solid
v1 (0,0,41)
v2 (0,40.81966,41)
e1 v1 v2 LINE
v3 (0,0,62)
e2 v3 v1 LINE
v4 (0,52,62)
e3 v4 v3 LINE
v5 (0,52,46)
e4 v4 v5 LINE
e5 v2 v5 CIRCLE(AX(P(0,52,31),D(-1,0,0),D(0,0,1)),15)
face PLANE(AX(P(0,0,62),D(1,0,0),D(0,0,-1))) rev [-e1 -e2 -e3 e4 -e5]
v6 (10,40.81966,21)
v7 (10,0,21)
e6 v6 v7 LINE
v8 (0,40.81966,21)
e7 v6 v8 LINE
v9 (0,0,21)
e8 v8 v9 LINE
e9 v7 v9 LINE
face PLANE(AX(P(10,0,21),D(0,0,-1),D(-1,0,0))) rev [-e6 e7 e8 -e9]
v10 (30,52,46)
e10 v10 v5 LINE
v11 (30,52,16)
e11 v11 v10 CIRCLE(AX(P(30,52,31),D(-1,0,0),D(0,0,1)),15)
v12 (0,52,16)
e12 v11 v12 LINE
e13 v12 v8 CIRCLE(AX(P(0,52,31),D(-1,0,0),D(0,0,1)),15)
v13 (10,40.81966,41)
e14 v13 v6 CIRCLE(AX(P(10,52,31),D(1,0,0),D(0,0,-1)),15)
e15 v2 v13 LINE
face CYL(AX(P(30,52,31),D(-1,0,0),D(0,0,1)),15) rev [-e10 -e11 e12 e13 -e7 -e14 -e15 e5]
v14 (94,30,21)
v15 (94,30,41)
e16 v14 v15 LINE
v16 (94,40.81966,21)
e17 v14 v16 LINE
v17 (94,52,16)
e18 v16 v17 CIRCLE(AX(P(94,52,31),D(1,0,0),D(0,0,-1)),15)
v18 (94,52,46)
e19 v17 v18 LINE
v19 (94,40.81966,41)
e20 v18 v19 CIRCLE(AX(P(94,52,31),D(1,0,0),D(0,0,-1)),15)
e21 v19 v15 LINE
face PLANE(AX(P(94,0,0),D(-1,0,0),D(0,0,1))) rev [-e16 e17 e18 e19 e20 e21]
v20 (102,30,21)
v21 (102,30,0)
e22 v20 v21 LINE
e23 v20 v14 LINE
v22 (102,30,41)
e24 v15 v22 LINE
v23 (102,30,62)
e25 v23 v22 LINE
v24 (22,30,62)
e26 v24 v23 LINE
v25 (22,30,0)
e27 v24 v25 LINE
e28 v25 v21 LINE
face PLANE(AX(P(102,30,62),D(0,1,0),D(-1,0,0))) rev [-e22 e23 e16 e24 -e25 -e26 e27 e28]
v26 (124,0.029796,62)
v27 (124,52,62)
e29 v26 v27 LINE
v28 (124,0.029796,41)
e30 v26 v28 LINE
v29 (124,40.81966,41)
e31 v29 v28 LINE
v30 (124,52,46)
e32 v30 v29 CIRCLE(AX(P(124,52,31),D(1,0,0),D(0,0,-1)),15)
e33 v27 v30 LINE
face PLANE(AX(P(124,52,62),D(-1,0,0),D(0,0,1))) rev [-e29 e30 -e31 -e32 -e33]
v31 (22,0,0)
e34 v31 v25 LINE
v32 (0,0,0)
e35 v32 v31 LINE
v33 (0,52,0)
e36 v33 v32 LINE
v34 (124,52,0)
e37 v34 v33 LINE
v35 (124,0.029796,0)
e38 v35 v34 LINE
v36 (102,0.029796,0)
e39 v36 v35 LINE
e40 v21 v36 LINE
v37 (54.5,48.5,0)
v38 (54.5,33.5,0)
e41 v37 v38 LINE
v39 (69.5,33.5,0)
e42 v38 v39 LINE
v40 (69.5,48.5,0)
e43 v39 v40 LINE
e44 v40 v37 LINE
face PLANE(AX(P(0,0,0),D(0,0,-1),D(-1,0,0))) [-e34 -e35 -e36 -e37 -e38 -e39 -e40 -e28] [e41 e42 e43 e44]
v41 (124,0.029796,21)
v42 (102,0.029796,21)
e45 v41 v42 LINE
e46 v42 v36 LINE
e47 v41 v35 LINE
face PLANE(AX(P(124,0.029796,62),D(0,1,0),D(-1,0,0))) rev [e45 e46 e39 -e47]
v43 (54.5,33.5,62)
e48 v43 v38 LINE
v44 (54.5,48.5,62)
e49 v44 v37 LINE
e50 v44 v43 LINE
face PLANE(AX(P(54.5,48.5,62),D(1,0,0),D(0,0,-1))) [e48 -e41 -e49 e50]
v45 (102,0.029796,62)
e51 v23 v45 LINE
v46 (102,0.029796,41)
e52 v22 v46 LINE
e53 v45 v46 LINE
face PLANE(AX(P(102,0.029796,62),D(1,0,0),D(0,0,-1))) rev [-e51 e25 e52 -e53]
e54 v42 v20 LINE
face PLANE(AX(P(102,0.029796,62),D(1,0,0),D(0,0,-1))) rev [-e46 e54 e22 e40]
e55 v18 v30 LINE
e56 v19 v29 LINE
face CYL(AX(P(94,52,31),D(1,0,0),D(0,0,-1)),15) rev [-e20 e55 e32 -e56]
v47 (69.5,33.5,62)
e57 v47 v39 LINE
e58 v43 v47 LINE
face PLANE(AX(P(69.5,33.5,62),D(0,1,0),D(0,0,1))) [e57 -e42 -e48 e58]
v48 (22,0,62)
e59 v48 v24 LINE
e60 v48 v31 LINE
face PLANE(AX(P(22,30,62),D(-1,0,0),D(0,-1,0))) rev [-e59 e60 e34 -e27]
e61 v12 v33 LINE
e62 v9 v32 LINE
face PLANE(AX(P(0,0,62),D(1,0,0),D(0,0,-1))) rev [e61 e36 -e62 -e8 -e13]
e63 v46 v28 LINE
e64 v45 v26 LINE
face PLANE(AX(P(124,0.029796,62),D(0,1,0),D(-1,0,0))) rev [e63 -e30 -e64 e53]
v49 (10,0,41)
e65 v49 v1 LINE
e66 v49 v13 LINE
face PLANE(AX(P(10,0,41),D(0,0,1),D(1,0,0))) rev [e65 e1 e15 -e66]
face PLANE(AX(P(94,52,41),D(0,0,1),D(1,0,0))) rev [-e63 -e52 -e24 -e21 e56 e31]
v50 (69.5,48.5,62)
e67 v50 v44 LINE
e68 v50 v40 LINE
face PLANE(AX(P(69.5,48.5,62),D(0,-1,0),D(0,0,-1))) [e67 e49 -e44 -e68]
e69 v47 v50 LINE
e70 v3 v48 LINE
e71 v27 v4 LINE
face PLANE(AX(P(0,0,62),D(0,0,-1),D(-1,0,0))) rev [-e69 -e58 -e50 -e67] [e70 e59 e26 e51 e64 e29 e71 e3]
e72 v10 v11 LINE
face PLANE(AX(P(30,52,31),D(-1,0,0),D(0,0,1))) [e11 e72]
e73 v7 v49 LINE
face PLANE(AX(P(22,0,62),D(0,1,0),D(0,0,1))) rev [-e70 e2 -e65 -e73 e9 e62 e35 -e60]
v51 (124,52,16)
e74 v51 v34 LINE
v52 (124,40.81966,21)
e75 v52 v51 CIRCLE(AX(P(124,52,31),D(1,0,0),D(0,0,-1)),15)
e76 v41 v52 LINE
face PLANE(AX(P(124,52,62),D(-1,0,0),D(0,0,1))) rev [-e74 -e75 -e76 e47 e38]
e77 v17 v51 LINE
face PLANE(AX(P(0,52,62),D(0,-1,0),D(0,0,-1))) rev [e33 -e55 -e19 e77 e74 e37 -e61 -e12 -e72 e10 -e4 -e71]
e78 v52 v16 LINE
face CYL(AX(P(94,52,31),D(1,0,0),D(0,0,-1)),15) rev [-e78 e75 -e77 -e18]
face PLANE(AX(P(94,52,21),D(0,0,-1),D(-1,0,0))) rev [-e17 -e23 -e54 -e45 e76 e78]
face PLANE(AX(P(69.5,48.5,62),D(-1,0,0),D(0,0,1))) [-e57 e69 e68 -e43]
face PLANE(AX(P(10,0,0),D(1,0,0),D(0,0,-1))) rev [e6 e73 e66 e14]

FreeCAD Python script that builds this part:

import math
import FreeCAD as App
import Part
import Sketcher

V = App.Vector
Q = App.Units.Quantity

doc = App.newDocument("Part")
body = doc.addObject("PartDesign::Body", "Body")

sketch1 = body.newObject("Sketcher::SketchObject", "Sketch")
sketch1.AttachmentSupport = (doc.getObject("XY_Plane"), [""])
sketch1.MapMode = "FlatFace"
sketch1.addGeometry([
    Part.LineSegment(V(0, 52, 0), V(0, 0, 0)),
    Part.LineSegment(V(0, 0, 0), V(22, 0, 0)),
    Part.LineSegment(V(22, 0, 0), V(22, 30, 0)),
    Part.LineSegment(V(22, 30, 0), V(102, 30, 0)),
    Part.LineSegment(V(102, 30, 0), V(102, 0.029796, 0)),
    Part.LineSegment(V(102, 0.029796, 0), V(124, 0.029796, 0)),
    Part.LineSegment(V(124, 0.029796, 0), V(124, 52, 0)),
    Part.LineSegment(V(124, 52, 0), V(0, 52, 0)),
    Part.LineSegment(V(54.5, 33.5, 0), V(54.5, 48.5, 0)),
    Part.LineSegment(V(54.5, 48.5, 0), V(69.5, 48.5, 0)),
    Part.LineSegment(V(69.5, 48.5, 0), V(69.5, 33.5, 0)),
    Part.LineSegment(V(69.5, 33.5, 0), V(54.5, 33.5, 0)),
], False)
sketch1.addConstraint([
    Sketcher.Constraint("Coincident", 0, 2, 1, 1),
    Sketcher.Constraint("Coincident", 1, 2, 2, 1),
    Sketcher.Constraint("Coincident", 2, 2, 3, 1),
    Sketcher.Constraint("Coincident", 3, 2, 4, 1),
    Sketcher.Constraint("Coincident", 4, 2, 5, 1),
    Sketcher.Constraint("Coincident", 5, 2, 6, 1),
    Sketcher.Constraint("Coincident", 6, 2, 7, 1),
    Sketcher.Constraint("Coincident", 7, 2, 0, 1),
    Sketcher.Constraint("Coincident", 8, 2, 9, 1),
    Sketcher.Constraint("Coincident", 9, 2, 10, 1),
    Sketcher.Constraint("Coincident", 10, 2, 11, 1),
    Sketcher.Constraint("Coincident", 11, 2, 8, 1),
    Sketcher.Constraint("Vertical", 0),
    Sketcher.Constraint("Horizontal", 1),
    Sketcher.Constraint("Vertical", 2),
    Sketcher.Constraint("Horizontal", 3),
    Sketcher.Constraint("Vertical", 4),
    Sketcher.Constraint("Horizontal", 5),
    Sketcher.Constraint("Vertical", 6),
    Sketcher.Constraint("Horizontal", 7),
    Sketcher.Constraint("Vertical", 8),
    Sketcher.Constraint("Horizontal", 9),
    Sketcher.Constraint("Vertical", 10),
    Sketcher.Constraint("Horizontal", 11),
    Sketcher.Constraint("Coincident", 0, 2, -1, 1),
    Sketcher.Constraint("Equal", 1, 5),
    Sketcher.Constraint("Equal", 11, 8),
    Sketcher.Constraint("DistanceX", 1, 1, 1, 2, Q("22 mm")),
    Sketcher.Constraint("DistanceX", 3, 1, 3, 2, Q("80 mm")),
    Sketcher.Constraint("DistanceX", 9, 1, 9, 2, Q("15 mm")),
    Sketcher.Constraint("DistanceY", 0, 2, 0, 1, Q("52 mm")),
    Sketcher.Constraint("DistanceY", 2, 1, 2, 2, Q("30 mm")),
    Sketcher.Constraint("DistanceX", -1, 1, 8, 2, Q("54.5 mm")),
    Sketcher.Constraint("DistanceY", -1, 1, 8, 2, Q("48.5 mm")),
    Sketcher.Constraint("DistanceY", 4, 2, 4, 1, Q("29.970204 mm")),
])
pad1 = body.newObject("PartDesign::Pad", "Pad")
pad1.Profile = sketch1
pad1.Length = 62

sketch2 = body.newObject("Sketcher::SketchObject", "Sketch001")
sketch2.AttachmentSupport = (doc.getObject("YZ_Plane"), [""])
sketch2.MapMode = "FlatFace"
sketch2.addGeometry([
    Part.LineSegment(V(52, 21, 0), V(0, 21, 0)),
    Part.LineSegment(V(0, 21, 0), V(0, 41, 0)),
    Part.LineSegment(V(0, 41, 0), V(52, 41, 0)),
    Part.LineSegment(V(52, 41, 0), V(52, 21, 0)),
], False)
sketch2.addConstraint([
    Sketcher.Constraint("Coincident", 0, 2, 1, 1),
    Sketcher.Constraint("Coincident", 1, 2, 2, 1),
    Sketcher.Constraint("Coincident", 2, 2, 3, 1),
    Sketcher.Constraint("Coincident", 3, 2, 0, 1),
    Sketcher.Constraint("Horizontal", 0),
    Sketcher.Constraint("Vertical", 1),
    Sketcher.Constraint("Horizontal", 2),
    Sketcher.Constraint("Vertical", 3),
    Sketcher.Constraint("PointOnObject", 0, 2, -2),
    Sketcher.Constraint("DistanceX", 0, 2, 0, 1, Q("52 mm")),
    Sketcher.Constraint("DistanceY", 1, 1, 1, 2, Q("20 mm")),
    Sketcher.Constraint("DistanceY", -1, 1, 0, 2, Q("21 mm")),
])
pocket1 = body.newObject("PartDesign::Pocket", "Pocket")
pocket1.Profile = sketch2
pocket1.Length = 10
pocket1.Reversed = True

sketch3 = body.newObject("Sketcher::SketchObject", "Sketch002")
sketch3.AttachmentSupport = (doc.getObject("YZ_Plane"), [""])
sketch3.MapMode = "FlatFace"
sketch3.addGeometry([
    Part.LineSegment(V(52, 46, 0), V(52, 16, 0)),
    Part.ArcOfCircle(Part.Circle(V(52, 31, 0), V(0, 0, 1), 15), math.radians(90), math.radians(270)),
], False)
sketch3.addConstraint([
    Sketcher.Constraint("Coincident", 0, 1, 1, 1),
    Sketcher.Constraint("Coincident", 1, 2, 0, 2),
    Sketcher.Constraint("Vertical", 0),
    Sketcher.Constraint("Vertical", 1, 3, 0, 1),
    Sketcher.Constraint("Radius", 1, Q("15 mm")),
    Sketcher.Constraint("DistanceX", -1, 1, 1, 3, Q("52 mm")),
    Sketcher.Constraint("DistanceY", -1, 1, 1, 3, Q("31 mm")),
])
pocket2 = body.newObject("PartDesign::Pocket", "Pocket001")
pocket2.Profile = sketch3
pocket2.Length = 30
pocket2.Reversed = True

sketch4 = body.newObject("Sketcher::SketchObject", "Sketch003")
sketch4.AttachmentSupport = (doc.getObject("YZ_Plane"), [""])
sketch4.MapMode = "FlatFace"
sketch4.AttachmentOffset = App.Placement(V(0, 0, 124), App.Rotation())
sketch4.addGeometry([
    Part.LineSegment(V(52, 41, 0), V(0, 41, 0)),
    Part.LineSegment(V(0, 41, 0), V(0, 21, 0)),
    Part.LineSegment(V(0, 21, 0), V(52, 21, 0)),
    Part.LineSegment(V(52, 21, 0), V(52, 41, 0)),
], False)
sketch4.addConstraint([
    Sketcher.Constraint("Coincident", 0, 2, 1, 1),
    Sketcher.Constraint("Coincident", 1, 2, 2, 1),
    Sketcher.Constraint("Coincident", 2, 2, 3, 1),
    Sketcher.Constraint("Coincident", 3, 2, 0, 1),
    Sketcher.Constraint("Horizontal", 0),
    Sketcher.Constraint("Vertical", 1),
    Sketcher.Constraint("Horizontal", 2),
    Sketcher.Constraint("Vertical", 3),
    Sketcher.Constraint("PointOnObject", 0, 2, -2),
    Sketcher.Constraint("DistanceX", 0, 2, 0, 1, Q("52 mm")),
    Sketcher.Constraint("DistanceY", 1, 2, 1, 1, Q("20 mm")),
    Sketcher.Constraint("DistanceY", -1, 1, 0, 2, Q("41 mm")),
])
pocket3 = body.newObject("PartDesign::Pocket", "Pocket002")
pocket3.Profile = sketch4
pocket3.Length = 30

sketch5 = body.newObject("Sketcher::SketchObject", "Sketch004")
sketch5.AttachmentSupport = (doc.getObject("YZ_Plane"), [""])
sketch5.MapMode = "FlatFace"
sketch5.AttachmentOffset = App.Placement(V(0, 0, 94), App.Rotation())
sketch5.addGeometry([
    Part.LineSegment(V(52, 16, 0), V(52, 46, 0)),
    Part.ArcOfCircle(Part.Circle(V(52, 31, 0), V(0, 0, 1), 15), math.radians(90), math.radians(270)),
], False)
sketch5.addConstraint([
    Sketcher.Constraint("Coincident", 0, 1, 1, 2),
    Sketcher.Constraint("Coincident", 1, 1, 0, 2),
    Sketcher.Constraint("Vertical", 0),
    Sketcher.Constraint("Vertical", 1, 3, 0, 1),
    Sketcher.Constraint("Radius", 1, Q("15 mm")),
    Sketcher.Constraint("DistanceX", -1, 1, 1, 3, Q("52 mm")),
    Sketcher.Constraint("DistanceY", -1, 1, 1, 3, Q("31 mm")),
])
pocket4 = body.newObject("PartDesign::Pocket", "Pocket003")
pocket4.Profile = sketch5
pocket4.Length = 30
pocket4.Reversed = True

doc.recompute()
